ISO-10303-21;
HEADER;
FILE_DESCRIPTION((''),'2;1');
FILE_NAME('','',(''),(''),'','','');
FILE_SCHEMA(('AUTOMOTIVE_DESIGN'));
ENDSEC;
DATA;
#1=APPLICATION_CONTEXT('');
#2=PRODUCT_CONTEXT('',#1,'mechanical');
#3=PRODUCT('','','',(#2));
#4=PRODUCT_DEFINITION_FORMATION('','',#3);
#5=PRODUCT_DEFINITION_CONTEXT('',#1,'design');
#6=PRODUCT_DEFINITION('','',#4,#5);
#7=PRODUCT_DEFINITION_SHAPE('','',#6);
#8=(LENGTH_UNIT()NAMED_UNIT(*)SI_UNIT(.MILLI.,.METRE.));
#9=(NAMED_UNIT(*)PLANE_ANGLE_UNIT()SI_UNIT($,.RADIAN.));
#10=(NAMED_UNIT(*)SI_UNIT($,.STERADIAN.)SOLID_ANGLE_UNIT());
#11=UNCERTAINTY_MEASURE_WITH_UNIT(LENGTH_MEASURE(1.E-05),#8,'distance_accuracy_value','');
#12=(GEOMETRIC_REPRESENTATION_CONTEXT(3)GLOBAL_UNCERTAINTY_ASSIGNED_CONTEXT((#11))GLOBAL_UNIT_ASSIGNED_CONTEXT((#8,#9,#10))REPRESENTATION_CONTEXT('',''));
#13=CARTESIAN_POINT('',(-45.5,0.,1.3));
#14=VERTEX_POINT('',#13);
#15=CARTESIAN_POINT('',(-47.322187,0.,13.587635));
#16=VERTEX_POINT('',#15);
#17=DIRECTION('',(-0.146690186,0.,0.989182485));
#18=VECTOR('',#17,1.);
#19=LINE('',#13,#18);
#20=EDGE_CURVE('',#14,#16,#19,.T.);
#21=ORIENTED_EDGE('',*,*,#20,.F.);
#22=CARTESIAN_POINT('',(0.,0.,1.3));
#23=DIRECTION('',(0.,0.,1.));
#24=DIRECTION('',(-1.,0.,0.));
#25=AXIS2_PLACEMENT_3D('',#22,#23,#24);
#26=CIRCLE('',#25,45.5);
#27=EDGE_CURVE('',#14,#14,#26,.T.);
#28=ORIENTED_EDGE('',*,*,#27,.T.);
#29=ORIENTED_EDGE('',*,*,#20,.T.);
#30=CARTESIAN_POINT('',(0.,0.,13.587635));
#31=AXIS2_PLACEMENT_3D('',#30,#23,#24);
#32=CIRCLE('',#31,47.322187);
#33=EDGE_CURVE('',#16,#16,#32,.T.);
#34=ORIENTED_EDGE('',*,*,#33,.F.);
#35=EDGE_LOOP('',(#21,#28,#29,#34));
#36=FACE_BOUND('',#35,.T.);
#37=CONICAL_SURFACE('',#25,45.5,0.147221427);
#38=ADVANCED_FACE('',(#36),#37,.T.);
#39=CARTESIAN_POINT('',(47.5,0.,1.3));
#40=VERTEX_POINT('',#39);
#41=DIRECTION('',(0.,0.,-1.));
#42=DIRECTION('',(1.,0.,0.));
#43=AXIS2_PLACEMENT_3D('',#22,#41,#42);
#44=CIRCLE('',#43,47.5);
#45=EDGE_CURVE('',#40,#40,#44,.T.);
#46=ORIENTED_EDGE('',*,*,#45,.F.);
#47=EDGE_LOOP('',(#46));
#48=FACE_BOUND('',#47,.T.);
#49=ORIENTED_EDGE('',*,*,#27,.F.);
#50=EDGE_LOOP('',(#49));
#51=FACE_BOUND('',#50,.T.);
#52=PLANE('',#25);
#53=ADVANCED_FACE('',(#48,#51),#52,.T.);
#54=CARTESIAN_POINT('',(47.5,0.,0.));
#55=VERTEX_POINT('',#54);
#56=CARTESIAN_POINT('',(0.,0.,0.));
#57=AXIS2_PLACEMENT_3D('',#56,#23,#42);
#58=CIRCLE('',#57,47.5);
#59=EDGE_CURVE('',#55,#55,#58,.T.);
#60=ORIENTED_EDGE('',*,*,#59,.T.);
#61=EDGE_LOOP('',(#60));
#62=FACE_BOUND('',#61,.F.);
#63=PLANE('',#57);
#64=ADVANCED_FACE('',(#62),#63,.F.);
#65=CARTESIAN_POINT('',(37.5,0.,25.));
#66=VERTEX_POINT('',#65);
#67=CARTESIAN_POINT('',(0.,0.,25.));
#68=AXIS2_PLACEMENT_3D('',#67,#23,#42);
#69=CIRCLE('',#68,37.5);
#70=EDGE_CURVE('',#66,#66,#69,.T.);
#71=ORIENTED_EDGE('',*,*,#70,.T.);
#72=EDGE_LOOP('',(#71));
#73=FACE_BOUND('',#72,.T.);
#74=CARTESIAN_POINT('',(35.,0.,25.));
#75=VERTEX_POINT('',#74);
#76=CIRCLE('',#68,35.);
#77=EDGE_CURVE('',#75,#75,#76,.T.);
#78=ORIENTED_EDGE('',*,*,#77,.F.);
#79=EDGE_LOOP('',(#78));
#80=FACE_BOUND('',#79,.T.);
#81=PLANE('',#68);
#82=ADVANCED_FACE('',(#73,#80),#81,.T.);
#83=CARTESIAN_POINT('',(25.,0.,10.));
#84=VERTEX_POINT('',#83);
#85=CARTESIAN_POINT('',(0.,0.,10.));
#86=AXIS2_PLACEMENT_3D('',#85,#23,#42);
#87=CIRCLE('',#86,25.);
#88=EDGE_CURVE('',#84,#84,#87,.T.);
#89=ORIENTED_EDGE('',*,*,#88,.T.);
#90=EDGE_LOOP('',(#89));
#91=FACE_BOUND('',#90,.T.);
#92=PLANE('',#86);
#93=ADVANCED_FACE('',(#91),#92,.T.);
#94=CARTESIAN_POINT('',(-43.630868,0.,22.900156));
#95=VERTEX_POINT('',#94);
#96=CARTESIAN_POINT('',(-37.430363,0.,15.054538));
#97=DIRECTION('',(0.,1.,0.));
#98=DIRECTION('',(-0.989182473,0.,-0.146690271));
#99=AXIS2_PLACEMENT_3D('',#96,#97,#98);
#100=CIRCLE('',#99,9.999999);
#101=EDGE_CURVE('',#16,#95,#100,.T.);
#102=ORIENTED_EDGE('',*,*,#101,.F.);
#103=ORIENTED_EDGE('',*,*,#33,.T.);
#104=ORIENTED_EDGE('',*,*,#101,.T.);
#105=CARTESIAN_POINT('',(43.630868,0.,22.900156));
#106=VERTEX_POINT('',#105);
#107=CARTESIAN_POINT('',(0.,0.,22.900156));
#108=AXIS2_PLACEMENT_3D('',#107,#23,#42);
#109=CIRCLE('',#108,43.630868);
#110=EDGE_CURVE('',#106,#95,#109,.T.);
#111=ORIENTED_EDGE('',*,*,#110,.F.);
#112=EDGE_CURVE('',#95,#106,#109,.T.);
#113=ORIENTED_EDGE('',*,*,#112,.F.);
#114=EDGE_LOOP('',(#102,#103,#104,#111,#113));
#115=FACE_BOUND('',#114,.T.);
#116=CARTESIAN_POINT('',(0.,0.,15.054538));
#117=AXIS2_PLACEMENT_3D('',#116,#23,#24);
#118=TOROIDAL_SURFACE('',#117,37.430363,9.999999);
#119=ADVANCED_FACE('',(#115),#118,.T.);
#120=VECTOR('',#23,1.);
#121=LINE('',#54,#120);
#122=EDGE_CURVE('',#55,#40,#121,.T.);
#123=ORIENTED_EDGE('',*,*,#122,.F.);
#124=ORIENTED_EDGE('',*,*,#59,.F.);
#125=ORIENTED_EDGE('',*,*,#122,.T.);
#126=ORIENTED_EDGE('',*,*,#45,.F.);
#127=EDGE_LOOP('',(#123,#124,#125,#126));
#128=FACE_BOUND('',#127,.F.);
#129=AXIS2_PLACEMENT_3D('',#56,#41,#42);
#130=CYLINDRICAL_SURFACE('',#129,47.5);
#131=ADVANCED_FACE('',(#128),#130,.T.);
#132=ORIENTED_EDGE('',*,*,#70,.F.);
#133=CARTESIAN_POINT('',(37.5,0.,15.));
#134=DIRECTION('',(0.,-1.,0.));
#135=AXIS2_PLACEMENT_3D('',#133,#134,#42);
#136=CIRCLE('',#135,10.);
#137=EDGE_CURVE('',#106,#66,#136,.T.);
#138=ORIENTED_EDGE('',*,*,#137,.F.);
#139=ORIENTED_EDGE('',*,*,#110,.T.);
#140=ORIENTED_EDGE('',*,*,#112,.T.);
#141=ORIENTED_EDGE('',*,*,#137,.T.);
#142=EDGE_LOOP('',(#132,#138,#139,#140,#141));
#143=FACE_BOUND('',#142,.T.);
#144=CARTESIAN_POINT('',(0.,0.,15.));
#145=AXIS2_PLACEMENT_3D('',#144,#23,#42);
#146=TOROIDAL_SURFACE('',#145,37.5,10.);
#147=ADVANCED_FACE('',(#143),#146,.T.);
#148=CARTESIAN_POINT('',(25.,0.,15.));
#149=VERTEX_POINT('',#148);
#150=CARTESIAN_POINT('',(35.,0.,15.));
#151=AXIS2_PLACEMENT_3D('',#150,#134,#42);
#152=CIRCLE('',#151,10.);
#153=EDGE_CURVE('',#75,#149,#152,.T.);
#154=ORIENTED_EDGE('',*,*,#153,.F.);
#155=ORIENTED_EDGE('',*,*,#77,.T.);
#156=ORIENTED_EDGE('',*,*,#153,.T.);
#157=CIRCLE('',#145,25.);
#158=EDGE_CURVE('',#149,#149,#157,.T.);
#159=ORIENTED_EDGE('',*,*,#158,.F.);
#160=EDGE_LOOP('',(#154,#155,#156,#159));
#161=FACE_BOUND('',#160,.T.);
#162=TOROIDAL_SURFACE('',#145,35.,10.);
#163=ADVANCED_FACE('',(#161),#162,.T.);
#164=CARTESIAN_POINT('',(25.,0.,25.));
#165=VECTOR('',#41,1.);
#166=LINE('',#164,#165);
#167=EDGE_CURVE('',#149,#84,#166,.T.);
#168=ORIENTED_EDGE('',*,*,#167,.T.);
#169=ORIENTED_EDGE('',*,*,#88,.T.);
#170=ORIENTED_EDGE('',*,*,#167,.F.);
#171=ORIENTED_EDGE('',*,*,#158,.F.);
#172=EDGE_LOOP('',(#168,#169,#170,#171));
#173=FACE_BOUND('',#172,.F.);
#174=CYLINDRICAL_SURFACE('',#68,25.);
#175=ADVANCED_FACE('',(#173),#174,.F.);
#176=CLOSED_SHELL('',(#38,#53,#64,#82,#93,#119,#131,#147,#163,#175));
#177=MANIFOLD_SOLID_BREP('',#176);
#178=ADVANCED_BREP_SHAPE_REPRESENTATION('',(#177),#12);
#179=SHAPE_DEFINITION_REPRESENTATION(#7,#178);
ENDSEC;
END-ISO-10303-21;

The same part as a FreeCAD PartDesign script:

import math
import FreeCAD as App
import Part
import Sketcher

V = App.Vector
Q = App.Units.Quantity


def edges_at(feature, points):
    """Names of the edges that pass closest to the given points."""
    edges = feature.Shape.Edges
    near = lambda p: min(range(len(edges)), key=lambda i: edges[i].distToShape(Part.Vertex(*p))[0])
    return sorted({f"Edge{near(p) + 1}" for p in points})

doc = App.newDocument("Part")
body = doc.addObject("PartDesign::Body", "Body")

# Sketch on XY plane
sketch1 = body.newObject("Sketcher::SketchObject", "Sketch")
sketch1.AttachmentSupport = (doc.getObject("XY_Plane"), [""])
sketch1.MapMode = "FlatFace"
sketch1.addGeometry(Part.Circle(V(0, 0, 0), V(0, 0, 1), 47.5), False)
sketch1.addConstraint(Sketcher.Constraint("Coincident", 0, 3, -1, 1))
sketch1.addConstraint(Sketcher.Constraint("Diameter", 0, Q("95 mm")))
pad1 = body.newObject("PartDesign::Pad", "Pad")
pad1.Profile = sketch1
pad1.Length = 25

# Sketch on XY plane
sketch2 = body.newObject("Sketcher::SketchObject", "Sketch001")
sketch2.AttachmentSupport = (doc.getObject("XY_Plane"), [""])
sketch2.MapMode = "FlatFace"
sketch2.AttachmentOffset = App.Placement(V(0, 0, 25), App.Rotation())
sketch2.addGeometry(Part.Circle(V(0, 0, 0), V(0, 0, 1), 25), False)
sketch2.addConstraint(Sketcher.Constraint("Coincident", 0, 3, -1, 1))
sketch2.addConstraint(Sketcher.Constraint("Diameter", 0, Q("50 mm")))
pocket1 = body.newObject("PartDesign::Pocket", "Pocket")
pocket1.Profile = sketch2
pocket1.Length = 15
doc.recompute()

fillet = body.newObject("PartDesign::Fillet", "Fillet")
fillet.Base = (pocket1, edges_at(pocket1, [(-47.5, 0, 25), (-25, 0, 25)]))
fillet.Radius = 10

# Sketch on XZ plane
sketch3 = body.newObject("Sketcher::SketchObject", "Sketch002")
sketch3.AttachmentSupport = (doc.getObject("XZ_Plane"), [""])
sketch3.MapMode = "FlatFace"
sketch3.addGeometry(Part.LineSegment(V(-50.882176, -0.324849, 0), V(-47.5, 0, 0)), False)
sketch3.addGeometry(Part.LineSegment(V(-47.5, 0, 0), V(-47.5, 1.3, 0)), False)
sketch3.addGeometry(Part.LineSegment(V(-47.5, 1.3, 0), V(-45.5, 1.3, 0)), False)
sketch3.addGeometry(Part.LineSegment(V(-45.5, 1.3, 0), V(-47.322187, 13.587635, 0)), False)
sketch3.addGeometry(Part.ArcOfCircle(Part.Circle(V(-37.430363, 15.054538, 0), V(0, 0, 1), 9.999999), math.radians(89.828867), math.radians(188.435171)), False)
sketch3.addGeometry(Part.LineSegment(V(-37.400495, 25.054492, 0), V(-37.400495, 26.943451, 0)), False)
sketch3.addGeometry(Part.LineSegment(V(-37.400495, 26.943451, 0), V(-49.502667, 21.701315, 0)), False)
sketch3.addGeometry(Part.LineSegment(V(-49.502667, 21.701315, 0), V(-50.882176, -0.324849, 0)), False)
sketch3.addConstraint(Sketcher.Constraint("Coincident", 0, 2, 1, 1))
sketch3.addConstraint(Sketcher.Constraint("Coincident", 1, 2, 2, 1))
sketch3.addConstraint(Sketcher.Constraint("Coincident", 2, 2, 3, 1))
sketch3.addConstraint(Sketcher.Constraint("Tangent", 3, 2, 4, 2))
sketch3.addConstraint(Sketcher.Constraint("Coincident", 4, 1, 5, 1))
sketch3.addConstraint(Sketcher.Constraint("Coincident", 5, 2, 6, 1))
sketch3.addConstraint(Sketcher.Constraint("Coincident", 6, 2, 7, 1))
sketch3.addConstraint(Sketcher.Constraint("Coincident", 7, 2, 0, 1))
sketch3.addConstraint(Sketcher.Constraint("Vertical", 1))
sketch3.addConstraint(Sketcher.Constraint("Horizontal", 2))
sketch3.addConstraint(Sketcher.Constraint("Vertical", 5))
sketch3.addConstraint(Sketcher.Constraint("PointOnObject", 0, 2, -1))
sketch3.addConstraint(Sketcher.Constraint("Radius", 4, Q("9.999999 mm")))
sketch3.addConstraint(Sketcher.Constraint("DistanceX", 2, 1, 2, 2, Q("2 mm")))
sketch3.addConstraint(Sketcher.Constraint("DistanceY", 1, 1, 1, 2, Q("1.3 mm")))
sketch3.addConstraint(Sketcher.Constraint("DistanceX", 0, 2, -1, 1, Q("47.5 mm")))
sketch3.addConstraint(Sketcher.Constraint("DistanceY", 5, 1, 5, 2, Q("1.888959 mm")))
sketch3.addConstraint(Sketcher.Constraint("Distance", 0, Q("3.397741 mm")))
sketch3.addConstraint(Sketcher.Constraint("Distance", 3, Q("12.42201 mm")))
sketch3.addConstraint(Sketcher.Constraint("Distance", 6, Q("13.188728 mm")))
sketch3.addConstraint(Sketcher.Constraint("Distance", 7, Q("22.069321 mm")))
sketch3.addConstraint(Sketcher.Constraint("DistanceY", -1, 1, 5, 2, Q("26.943451 mm")))
sketch3.addConstraint(Sketcher.Constraint("DistanceY", 7, 2, -1, 1, Q("0.324849 mm")))
sketch3.addConstraint(Sketcher.Constraint("DistanceX", 4, 3, 4, 1, Q("0.029868 mm")))
groove = body.newObject("PartDesign::Groove", "Groove")
groove.Profile = sketch3
groove.ReferenceAxis = (sketch3, ["V_Axis"])
groove.Angle = 360

doc.recompute()
